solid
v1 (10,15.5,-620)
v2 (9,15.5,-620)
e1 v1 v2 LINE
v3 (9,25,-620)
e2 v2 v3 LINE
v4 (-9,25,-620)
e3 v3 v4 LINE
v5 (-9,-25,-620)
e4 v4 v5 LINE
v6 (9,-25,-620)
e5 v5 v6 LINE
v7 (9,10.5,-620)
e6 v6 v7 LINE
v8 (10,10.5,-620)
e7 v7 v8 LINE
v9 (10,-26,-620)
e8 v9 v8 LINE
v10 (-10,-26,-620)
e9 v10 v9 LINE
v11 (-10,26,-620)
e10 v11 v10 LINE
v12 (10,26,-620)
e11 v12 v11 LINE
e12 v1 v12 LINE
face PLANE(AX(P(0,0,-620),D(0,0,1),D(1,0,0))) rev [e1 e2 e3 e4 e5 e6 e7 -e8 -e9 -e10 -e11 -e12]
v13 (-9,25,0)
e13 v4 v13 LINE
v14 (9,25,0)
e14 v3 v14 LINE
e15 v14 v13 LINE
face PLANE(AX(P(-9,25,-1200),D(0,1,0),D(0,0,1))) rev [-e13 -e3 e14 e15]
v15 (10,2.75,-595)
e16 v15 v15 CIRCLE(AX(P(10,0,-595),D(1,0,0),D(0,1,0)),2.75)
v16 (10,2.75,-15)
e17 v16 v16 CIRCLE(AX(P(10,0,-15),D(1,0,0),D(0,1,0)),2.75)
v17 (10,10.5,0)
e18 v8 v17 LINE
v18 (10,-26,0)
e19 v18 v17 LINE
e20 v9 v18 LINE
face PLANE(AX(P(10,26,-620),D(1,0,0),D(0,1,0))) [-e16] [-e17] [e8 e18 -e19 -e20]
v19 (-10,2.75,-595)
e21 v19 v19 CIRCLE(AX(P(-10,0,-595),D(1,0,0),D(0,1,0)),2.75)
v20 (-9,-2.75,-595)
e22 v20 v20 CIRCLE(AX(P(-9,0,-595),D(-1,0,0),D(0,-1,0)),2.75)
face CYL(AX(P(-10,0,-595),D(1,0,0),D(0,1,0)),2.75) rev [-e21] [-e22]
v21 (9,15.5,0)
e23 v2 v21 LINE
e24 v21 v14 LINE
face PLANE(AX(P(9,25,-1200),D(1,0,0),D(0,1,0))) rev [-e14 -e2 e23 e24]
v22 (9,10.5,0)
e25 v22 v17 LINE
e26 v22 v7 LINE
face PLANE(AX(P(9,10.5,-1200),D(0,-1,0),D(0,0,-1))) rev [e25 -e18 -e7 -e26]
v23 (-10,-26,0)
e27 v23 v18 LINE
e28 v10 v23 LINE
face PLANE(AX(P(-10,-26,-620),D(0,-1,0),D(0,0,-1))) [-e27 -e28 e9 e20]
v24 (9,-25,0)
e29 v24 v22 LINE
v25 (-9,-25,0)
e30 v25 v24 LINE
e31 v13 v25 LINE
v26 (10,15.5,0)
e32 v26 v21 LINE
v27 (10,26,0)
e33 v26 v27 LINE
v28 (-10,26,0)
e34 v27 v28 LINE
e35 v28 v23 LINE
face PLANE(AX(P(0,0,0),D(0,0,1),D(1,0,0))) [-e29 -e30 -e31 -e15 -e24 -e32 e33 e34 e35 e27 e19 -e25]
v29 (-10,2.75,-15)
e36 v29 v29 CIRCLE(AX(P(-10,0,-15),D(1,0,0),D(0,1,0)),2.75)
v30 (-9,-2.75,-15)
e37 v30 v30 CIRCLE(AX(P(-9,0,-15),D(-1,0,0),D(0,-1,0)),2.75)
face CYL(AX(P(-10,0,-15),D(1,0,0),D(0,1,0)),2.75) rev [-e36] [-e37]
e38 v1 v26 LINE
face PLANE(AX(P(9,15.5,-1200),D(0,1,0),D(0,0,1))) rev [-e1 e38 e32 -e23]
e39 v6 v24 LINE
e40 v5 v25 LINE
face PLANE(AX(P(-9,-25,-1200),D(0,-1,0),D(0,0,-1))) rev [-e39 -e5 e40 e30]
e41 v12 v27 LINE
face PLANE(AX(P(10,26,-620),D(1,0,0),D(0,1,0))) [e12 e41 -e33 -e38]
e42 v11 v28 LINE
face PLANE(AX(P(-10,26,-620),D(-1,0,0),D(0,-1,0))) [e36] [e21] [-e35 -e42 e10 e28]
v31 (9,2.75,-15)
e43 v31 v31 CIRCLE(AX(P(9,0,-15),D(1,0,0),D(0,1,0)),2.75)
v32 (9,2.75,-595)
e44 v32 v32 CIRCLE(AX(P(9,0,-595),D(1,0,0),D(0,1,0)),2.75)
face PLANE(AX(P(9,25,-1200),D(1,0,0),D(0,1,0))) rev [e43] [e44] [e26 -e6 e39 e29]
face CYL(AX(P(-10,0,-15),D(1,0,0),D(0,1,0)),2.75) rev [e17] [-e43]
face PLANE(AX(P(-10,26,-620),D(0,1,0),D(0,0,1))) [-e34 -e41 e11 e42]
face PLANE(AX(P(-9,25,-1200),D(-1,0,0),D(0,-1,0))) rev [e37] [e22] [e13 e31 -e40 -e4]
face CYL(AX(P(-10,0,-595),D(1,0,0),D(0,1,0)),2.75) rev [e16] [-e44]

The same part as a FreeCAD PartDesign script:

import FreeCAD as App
import Part
import Sketcher
from FreeCAD import Vector
Q = App.Units.Quantity


def add_polygon(sketch, points):
    """Adds a closed chain of lines whose ends are joined by coincident constraints."""
    first, n = sketch.GeometryCount, len(points)
    for a, b in zip(points, points[1:] + points[:1]):
        sketch.addGeometry(Part.LineSegment(App.Vector(*a, 0), App.Vector(*b, 0)), False)
    for i in range(n):
        sketch.addConstraint(Sketcher.Constraint("Coincident", first + i, 2, first + (i + 1) % n, 1))

doc = App.newDocument("Part")
body = doc.addObject("PartDesign::Body", "Body")

sketch1 = body.newObject("Sketcher::SketchObject", "Sketch")
sketch1.AttachmentSupport = (doc.getObject("XY_Plane"), [""])
sketch1.MapMode = "FlatFace"
add_polygon(sketch1, [(-10, 26), (-10, -26), (10, -26), (10, 26)])
sketch1.addConstraint(Sketcher.Constraint("Vertical", 0))
sketch1.addConstraint(Sketcher.Constraint("Horizontal", 1))
sketch1.addConstraint(Sketcher.Constraint("Vertical", 2))
sketch1.addConstraint(Sketcher.Constraint("Horizontal", 3))
sketch1.addConstraint(Sketcher.Constraint("Symmetric", 0, 2, 2, 2, -1, 1))
sketch1.addConstraint(Sketcher.Constraint("DistanceX", 1, 1, 1, 2, Q("20 mm")))
sketch1.addConstraint(Sketcher.Constraint("DistanceY", 0, 2, 0, 1, Q("52 mm")))
pad1 = body.newObject("PartDesign::Pad", "Pad")
pad1.Profile = sketch1
pad1.Length = 620
pad1.Reversed = True

sketch2 = body.newObject("Sketcher::SketchObject", "Sketch001")
sketch2.AttachmentSupport = (doc.getObject("XY_Plane"), [""])
sketch2.MapMode = "FlatFace"
add_polygon(sketch2, [(-9, 25), (-9, -25), (9, -25), (9, 25)])
sketch2.addConstraint(Sketcher.Constraint("Vertical", 0))
sketch2.addConstraint(Sketcher.Constraint("Horizontal", 1))
sketch2.addConstraint(Sketcher.Constraint("Vertical", 2))
sketch2.addConstraint(Sketcher.Constraint("Horizontal", 3))
sketch2.addConstraint(Sketcher.Constraint("Symmetric", 0, 2, 2, 2, -1, 1))
sketch2.addConstraint(Sketcher.Constraint("DistanceX", 1, 1, 1, 2, Q("18 mm")))
sketch2.addConstraint(Sketcher.Constraint("DistanceY", 0, 2, 0, 1, Q("50 mm")))
pocket1 = body.newObject("PartDesign::Pocket", "Pocket")
pocket1.Profile = sketch2
pocket1.Length = 1200

sketch3 = body.newObject("Sketcher::SketchObject", "Sketch002")
sketch3.AttachmentSupport = (doc.getObject("YZ_Plane"), [""])
sketch3.MapMode = "FlatFace"
sketch3.AttachmentOffset = App.Placement(Vector(0, 0, 10), App.Rotation())
sketch3.addGeometry(Part.Circle(Vector(0, -15, 0), Vector(0, 0, 1), 2.75), False)
sketch3.addConstraint(Sketcher.Constraint("PointOnObject", 0, 3, -2))
sketch3.addConstraint(Sketcher.Constraint("Diameter", 0, Q("5.5 mm")))
sketch3.addConstraint(Sketcher.Constraint("DistanceY", 0, 3, -1, 1, Q("15 mm")))
pocket2 = body.newObject("PartDesign::Pocket", "Pocket001")
pocket2.Profile = sketch3
pocket2.Length = 20

sketch4 = body.newObject("Sketcher::SketchObject", "Sketch003")
sketch4.AttachmentSupport = (doc.getObject("XY_Plane"), [""])
sketch4.MapMode = "FlatFace"
add_polygon(sketch4, [(9, 15.5), (9, 10.5), (10, 10.5), (10, 15.5)])
sketch4.addConstraint(Sketcher.Constraint("Vertical", 0))
sketch4.addConstraint(Sketcher.Constraint("Horizontal", 1))
sketch4.addConstraint(Sketcher.Constraint("Vertical", 2))
sketch4.addConstraint(Sketcher.Constraint("Horizontal", 3))
sketch4.addConstraint(Sketcher.Constraint("DistanceX", 1, 1, 1, 2, Q("1 mm")))
sketch4.addConstraint(Sketcher.Constraint("DistanceY", 0, 2, 0, 1, Q("5 mm")))
sketch4.addConstraint(Sketcher.Constraint("DistanceX", -1, 1, 0, 2, Q("9 mm")))
sketch4.addConstraint(Sketcher.Constraint("DistanceY", -1, 1, 0, 2, Q("10.5 mm")))
pocket3 = body.newObject("PartDesign::Pocket", "Pocket002")
pocket3.Profile = sketch4
pocket3.Length = 1200

sketch5 = body.newObject("Sketcher::SketchObject", "Sketch004")
sketch5.AttachmentSupport = (doc.getObject("YZ_Plane"), [""])
sketch5.MapMode = "FlatFace"
sketch5.AttachmentOffset = App.Placement(Vector(0, 0, 10), App.Rotation())
sketch5.addGeometry(Part.Circle(Vector(0, -595, 0), Vector(0, 0, 1), 2.75), False)
sketch5.addConstraint(Sketcher.Constraint("PointOnObject", 0, 3, -2))
sketch5.addConstraint(Sketcher.Constraint("Diameter", 0, Q("5.5 mm")))
sketch5.addConstraint(Sketcher.Constraint("DistanceY", 0, 3, -1, 1, Q("595 mm")))
pocket4 = body.newObject("PartDesign::Pocket", "Pocket003")
pocket4.Profile = sketch5
pocket4.Length = 20

doc.recompute()
